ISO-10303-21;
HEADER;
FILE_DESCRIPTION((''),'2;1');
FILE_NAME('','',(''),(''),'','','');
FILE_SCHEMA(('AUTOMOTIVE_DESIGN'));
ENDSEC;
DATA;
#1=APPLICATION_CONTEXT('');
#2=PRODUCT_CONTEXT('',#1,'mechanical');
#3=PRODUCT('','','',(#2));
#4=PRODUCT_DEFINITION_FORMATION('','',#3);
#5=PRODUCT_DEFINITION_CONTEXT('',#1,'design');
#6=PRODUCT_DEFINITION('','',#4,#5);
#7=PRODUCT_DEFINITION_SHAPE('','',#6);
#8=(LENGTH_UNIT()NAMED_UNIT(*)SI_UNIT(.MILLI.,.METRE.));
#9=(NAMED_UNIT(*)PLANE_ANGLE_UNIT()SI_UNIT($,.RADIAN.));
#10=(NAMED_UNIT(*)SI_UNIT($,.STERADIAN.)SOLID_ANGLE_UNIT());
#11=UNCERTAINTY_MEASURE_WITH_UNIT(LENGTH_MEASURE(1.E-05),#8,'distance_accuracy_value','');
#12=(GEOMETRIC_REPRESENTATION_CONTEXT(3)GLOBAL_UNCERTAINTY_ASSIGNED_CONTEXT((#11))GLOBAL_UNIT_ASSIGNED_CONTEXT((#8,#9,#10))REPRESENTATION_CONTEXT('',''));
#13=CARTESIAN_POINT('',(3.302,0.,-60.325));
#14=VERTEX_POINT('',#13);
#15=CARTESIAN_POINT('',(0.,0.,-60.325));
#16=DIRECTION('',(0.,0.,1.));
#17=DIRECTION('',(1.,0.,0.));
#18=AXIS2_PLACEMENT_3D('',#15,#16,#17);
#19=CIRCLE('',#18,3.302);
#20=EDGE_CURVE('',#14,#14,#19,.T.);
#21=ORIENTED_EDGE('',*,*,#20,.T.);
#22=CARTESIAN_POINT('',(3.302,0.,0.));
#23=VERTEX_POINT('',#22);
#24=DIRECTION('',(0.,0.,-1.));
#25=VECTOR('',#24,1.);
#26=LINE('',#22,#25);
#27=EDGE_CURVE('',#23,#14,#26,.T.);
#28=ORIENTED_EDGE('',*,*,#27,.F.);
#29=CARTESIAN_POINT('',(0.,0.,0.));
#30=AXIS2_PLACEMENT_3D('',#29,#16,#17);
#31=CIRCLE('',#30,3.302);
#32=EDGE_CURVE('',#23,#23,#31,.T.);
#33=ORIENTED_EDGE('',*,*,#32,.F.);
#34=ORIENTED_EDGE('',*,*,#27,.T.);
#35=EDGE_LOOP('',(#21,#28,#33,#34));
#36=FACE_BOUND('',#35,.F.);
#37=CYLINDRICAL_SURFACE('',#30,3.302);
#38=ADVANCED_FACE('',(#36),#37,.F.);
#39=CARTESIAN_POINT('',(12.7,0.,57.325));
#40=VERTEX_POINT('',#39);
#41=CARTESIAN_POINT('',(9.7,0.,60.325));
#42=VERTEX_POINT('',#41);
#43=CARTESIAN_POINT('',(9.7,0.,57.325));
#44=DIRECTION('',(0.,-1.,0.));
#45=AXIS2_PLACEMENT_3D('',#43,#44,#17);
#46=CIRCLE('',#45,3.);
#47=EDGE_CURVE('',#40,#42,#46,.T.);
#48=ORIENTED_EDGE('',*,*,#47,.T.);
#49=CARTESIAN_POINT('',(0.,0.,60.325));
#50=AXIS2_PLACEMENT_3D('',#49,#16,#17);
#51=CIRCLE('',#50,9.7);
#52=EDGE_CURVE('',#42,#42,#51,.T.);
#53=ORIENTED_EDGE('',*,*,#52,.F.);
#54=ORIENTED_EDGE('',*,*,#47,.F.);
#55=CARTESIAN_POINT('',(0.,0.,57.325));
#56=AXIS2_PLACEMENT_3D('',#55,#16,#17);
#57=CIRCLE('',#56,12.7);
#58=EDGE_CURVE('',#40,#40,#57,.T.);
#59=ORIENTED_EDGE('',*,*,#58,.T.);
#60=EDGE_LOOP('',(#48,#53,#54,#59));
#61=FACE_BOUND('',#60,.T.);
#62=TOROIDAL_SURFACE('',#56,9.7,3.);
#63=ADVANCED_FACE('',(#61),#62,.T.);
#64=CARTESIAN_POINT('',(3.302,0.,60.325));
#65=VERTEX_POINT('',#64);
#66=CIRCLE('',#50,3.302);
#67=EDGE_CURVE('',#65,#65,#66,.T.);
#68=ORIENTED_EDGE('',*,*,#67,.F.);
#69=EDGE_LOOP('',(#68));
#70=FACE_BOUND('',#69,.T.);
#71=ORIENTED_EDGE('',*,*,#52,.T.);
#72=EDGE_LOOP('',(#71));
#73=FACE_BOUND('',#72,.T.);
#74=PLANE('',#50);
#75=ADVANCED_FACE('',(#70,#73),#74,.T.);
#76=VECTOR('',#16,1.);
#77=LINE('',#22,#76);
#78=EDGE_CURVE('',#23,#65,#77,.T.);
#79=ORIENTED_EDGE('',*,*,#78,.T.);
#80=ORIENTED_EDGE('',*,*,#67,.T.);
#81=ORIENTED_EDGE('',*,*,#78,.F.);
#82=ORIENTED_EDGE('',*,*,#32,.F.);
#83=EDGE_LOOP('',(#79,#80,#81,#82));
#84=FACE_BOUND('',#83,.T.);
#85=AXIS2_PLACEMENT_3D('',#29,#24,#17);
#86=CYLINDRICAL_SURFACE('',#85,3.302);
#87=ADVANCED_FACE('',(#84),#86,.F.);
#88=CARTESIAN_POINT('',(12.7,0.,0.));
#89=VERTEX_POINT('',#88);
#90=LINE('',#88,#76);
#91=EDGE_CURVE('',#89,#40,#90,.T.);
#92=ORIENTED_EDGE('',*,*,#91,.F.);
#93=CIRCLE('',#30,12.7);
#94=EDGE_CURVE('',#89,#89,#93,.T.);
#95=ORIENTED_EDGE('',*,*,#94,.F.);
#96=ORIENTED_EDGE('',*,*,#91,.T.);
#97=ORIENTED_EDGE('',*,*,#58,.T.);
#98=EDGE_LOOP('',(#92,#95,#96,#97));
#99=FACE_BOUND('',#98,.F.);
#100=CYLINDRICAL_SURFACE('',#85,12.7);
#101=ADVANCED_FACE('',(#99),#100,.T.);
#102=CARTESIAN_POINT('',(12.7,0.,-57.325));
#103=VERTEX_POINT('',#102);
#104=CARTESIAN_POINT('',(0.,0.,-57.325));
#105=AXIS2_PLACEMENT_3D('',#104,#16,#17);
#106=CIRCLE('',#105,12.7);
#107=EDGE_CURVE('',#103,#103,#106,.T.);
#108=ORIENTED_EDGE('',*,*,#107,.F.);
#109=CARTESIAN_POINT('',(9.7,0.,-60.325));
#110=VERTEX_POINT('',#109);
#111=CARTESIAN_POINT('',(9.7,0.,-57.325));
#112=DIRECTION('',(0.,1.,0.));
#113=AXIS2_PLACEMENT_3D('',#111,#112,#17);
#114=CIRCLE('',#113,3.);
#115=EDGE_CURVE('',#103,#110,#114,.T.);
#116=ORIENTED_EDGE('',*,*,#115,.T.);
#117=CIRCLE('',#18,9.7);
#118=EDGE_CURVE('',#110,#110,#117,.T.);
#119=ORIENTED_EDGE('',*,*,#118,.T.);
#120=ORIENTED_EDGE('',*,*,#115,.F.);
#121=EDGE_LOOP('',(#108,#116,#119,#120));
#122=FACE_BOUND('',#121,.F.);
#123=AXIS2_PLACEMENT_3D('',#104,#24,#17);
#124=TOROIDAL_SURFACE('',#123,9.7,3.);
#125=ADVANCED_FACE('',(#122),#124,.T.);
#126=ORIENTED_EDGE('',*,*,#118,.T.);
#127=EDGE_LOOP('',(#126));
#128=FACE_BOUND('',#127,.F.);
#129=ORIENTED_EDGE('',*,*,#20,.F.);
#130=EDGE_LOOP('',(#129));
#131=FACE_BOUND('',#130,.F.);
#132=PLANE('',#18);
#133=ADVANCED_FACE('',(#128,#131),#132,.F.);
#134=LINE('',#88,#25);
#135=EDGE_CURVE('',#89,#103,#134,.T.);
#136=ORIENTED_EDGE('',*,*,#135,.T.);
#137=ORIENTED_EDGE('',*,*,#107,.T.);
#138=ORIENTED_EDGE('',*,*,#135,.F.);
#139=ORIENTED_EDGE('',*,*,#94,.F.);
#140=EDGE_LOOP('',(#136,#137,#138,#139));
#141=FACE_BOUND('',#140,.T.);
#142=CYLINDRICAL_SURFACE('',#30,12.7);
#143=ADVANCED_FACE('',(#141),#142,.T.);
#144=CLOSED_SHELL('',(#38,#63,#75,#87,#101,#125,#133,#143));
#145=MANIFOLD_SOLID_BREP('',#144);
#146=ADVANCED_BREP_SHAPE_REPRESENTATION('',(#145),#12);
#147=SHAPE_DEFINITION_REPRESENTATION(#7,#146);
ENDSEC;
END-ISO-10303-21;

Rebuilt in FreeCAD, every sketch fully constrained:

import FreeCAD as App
import Part
import Sketcher

V = App.Vector
Q = App.Units.Quantity


def edges_at(feature, points):
    """Names of the edges that pass closest to the given points."""
    edges = feature.Shape.Edges
    near = lambda p: min(range(len(edges)), key=lambda i: edges[i].distToShape(Part.Vertex(*p))[0])
    return sorted({f"Edge{near(p) + 1}" for p in points})

doc = App.newDocument("Part")
body = doc.addObject("PartDesign::Body", "Body")

sketch1 = doc.addObject("Sketcher::SketchObject", "Sketch")
body.addObject(sketch1)
sketch1.AttachmentSupport = (doc.XY_Plane, [""])
sketch1.MapMode = "FlatFace"
sketch1.addGeometry([
    Part.Circle(V(0, 0, 0), V(0, 0, 1), 12.7),
    Part.Circle(V(0, 0, 0), V(0, 0, 1), 3.302),
], False)
sketch1.addConstraint([
    Sketcher.Constraint("Coincident", 0, 3, -1, 1),
    Sketcher.Constraint("Coincident", 1, 3, -1, 1),
    Sketcher.Constraint("Diameter", 0, Q("1 in")),
    Sketcher.Constraint("Diameter", 1, Q("0.26 in")),
])
pad1 = doc.addObject("PartDesign::Pad", "Pad")
body.addObject(pad1)
pad1.Profile = sketch1
pad1.Length = Q("4.75 in")
pad1.Midplane = True
doc.recompute()

fillet = doc.addObject("PartDesign::Fillet", "Fillet")
body.addObject(fillet)
fillet.Base = (pad1, edges_at(pad1, [(-12.7, 0, 60.325), (-12.7, 0, -60.325)]))
fillet.Radius = Q("0.1181102 in")

doc.recompute()
